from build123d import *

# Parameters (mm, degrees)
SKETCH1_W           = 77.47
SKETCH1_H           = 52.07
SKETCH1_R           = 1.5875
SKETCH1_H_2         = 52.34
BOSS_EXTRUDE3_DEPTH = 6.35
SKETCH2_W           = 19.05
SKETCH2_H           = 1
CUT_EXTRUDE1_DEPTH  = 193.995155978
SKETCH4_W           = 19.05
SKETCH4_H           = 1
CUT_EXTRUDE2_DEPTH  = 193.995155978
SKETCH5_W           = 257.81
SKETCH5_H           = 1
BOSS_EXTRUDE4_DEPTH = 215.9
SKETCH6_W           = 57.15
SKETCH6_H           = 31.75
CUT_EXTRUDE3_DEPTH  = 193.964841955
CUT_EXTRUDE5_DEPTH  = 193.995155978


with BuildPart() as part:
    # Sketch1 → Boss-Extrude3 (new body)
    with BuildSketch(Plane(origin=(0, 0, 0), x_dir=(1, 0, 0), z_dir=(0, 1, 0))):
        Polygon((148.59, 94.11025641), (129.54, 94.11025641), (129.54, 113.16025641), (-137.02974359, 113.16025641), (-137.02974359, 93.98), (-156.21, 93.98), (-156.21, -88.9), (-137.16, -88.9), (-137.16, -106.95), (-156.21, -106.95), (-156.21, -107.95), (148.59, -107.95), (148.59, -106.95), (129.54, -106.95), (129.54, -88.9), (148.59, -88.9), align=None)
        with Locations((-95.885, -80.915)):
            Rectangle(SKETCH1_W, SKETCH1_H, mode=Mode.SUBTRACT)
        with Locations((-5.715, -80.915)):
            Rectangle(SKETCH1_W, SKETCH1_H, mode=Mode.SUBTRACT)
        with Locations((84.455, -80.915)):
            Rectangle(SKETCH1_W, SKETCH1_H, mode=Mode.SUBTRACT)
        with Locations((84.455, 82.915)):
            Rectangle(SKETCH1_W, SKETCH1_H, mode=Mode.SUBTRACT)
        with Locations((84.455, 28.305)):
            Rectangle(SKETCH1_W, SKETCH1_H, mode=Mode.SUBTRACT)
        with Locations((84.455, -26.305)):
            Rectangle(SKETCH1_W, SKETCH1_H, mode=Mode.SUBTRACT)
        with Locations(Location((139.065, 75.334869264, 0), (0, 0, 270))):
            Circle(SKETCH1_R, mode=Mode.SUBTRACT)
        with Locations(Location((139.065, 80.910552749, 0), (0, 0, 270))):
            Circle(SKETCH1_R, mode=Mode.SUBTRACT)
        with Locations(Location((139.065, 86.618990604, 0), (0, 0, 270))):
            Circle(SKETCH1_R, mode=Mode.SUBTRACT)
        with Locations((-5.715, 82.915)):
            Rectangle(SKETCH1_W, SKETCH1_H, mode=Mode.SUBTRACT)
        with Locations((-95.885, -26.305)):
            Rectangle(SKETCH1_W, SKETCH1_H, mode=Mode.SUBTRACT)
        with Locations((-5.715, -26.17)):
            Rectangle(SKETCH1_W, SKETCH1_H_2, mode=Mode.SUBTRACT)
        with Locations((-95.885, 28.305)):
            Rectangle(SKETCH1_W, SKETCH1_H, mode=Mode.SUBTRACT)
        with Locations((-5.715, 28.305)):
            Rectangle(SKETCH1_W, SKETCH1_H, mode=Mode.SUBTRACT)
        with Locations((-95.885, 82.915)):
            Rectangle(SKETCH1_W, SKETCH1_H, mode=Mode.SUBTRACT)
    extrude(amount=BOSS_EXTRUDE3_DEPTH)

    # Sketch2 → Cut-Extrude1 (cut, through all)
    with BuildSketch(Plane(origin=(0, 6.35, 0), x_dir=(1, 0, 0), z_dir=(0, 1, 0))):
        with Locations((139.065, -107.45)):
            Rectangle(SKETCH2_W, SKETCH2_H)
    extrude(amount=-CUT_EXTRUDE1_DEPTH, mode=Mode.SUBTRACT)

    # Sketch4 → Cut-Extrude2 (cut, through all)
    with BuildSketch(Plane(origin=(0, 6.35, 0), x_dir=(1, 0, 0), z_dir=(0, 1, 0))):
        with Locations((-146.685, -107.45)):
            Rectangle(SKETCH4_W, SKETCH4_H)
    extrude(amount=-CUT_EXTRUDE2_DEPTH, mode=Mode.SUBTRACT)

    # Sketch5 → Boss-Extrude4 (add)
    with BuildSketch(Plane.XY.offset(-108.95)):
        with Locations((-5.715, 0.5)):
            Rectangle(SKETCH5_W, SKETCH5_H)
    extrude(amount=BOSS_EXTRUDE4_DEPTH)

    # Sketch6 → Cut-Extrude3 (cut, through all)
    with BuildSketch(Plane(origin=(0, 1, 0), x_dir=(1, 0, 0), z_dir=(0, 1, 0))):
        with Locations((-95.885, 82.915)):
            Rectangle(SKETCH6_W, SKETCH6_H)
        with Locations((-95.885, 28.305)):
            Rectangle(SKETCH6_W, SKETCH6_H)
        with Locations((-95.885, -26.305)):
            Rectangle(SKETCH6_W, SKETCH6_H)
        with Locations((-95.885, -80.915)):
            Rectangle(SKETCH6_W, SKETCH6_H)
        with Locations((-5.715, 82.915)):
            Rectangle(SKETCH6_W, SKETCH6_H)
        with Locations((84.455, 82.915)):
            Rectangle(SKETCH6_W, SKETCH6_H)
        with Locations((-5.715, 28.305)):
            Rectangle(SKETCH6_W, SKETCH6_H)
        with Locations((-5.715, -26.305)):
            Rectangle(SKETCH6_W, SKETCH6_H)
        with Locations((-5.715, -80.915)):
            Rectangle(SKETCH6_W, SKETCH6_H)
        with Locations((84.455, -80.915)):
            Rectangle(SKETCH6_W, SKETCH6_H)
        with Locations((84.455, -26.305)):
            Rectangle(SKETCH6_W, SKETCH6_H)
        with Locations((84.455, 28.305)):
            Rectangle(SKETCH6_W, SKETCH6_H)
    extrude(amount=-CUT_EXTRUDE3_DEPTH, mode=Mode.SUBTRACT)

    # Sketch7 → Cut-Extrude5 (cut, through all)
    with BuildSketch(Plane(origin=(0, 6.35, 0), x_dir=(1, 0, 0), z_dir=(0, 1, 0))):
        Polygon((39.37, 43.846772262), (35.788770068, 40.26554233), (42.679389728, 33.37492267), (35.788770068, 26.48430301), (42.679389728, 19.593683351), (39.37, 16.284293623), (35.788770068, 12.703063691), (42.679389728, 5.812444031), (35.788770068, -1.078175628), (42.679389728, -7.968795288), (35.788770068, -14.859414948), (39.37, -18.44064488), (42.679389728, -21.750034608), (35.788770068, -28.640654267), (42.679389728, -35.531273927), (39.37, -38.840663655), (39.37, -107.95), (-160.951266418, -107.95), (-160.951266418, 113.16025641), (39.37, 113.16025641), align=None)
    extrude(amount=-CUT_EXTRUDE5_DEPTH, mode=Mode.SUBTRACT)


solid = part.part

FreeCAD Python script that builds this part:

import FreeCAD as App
import Part
import Sketcher
from FreeCAD import Vector
Q = App.Units.Quantity

doc = App.newDocument("Part")
params = doc.addObject("Spreadsheet::Sheet", "Params")
for row, (alias, value) in enumerate([
    ("sketch1_width", "12 in"),
    ("sketch1_diameter", "0.125 in"),
    ("sketch1_height", "7.2 in"),
    ("sketch1_width2", "0.75 in"),
    ("sketch1_width3", "3.05 in"),
    ("pad1_length", "0.25 in"),
    ("sketch2_width", "0.75 in"),
    ("sketch3_width", "0.75 in"),
    ("sketch4_width", "10.15 in"),
    ("pad2_length", "8.5 in"),
    ("sketch5_width", "2.25 in"),
    ("sketch5_height", "1.25 in"),
], start=1):
    params.set(f"A{row}", alias)
    params.set(f"B{row}", "=" + value)
    params.setAlias(f"B{row}", alias)

body = doc.addObject("PartDesign::Body", "Body")

# Sketch on XZ plane
sketch1 = doc.addObject("Sketcher::SketchObject", "Sketch")
body.addObject(sketch1)
sketch1.AttachmentSupport = (doc.XZ_Plane, [""])
sketch1.MapMode = "FlatFace"
sketch1.addGeometry(Part.LineSegment(Vector(148.6, -94.1, 0), Vector(129.5, -94.1, 0)), False)
sketch1.addGeometry(Part.LineSegment(Vector(129.5, -94.1, 0), Vector(129.5, -113.2, 0)), False)
sketch1.addGeometry(Part.LineSegment(Vector(129.5, -113.2, 0), Vector(-137, -113.2, 0)), False)
sketch1.addGeometry(Part.LineSegment(Vector(-137, -113.2, 0), Vector(-137, -94, 0)), False)
sketch1.addGeometry(Part.LineSegment(Vector(-137, -94, 0), Vector(-156.2, -94, 0)), False)
sketch1.addGeometry(Part.LineSegment(Vector(-156.2, -94, 0), Vector(-156.2, 88.9, 0)), False)
sketch1.addGeometry(Part.LineSegment(Vector(-156.2, 88.9, 0), Vector(-137.2, 88.9, 0)), False)
sketch1.addGeometry(Part.LineSegment(Vector(-137.2, 88.9, 0), Vector(-137.2, 107, 0)), False)
sketch1.addGeometry(Part.LineSegment(Vector(-137.2, 107, 0), Vector(-156.2, 107, 0)), False)
sketch1.addGeometry(Part.LineSegment(Vector(-156.2, 107, 0), Vector(-156.2, 108, 0)), False)
sketch1.addGeometry(Part.LineSegment(Vector(-156.2, 108, 0), Vector(148.6, 108, 0)), False)
sketch1.addGeometry(Part.LineSegment(Vector(148.6, 108, 0), Vector(148.6, 107, 0)), False)
sketch1.addGeometry(Part.LineSegment(Vector(148.6, 107, 0), Vector(129.5, 107, 0)), False)
sketch1.addGeometry(Part.LineSegment(Vector(129.5, 107, 0), Vector(129.5, 88.9, 0)), False)
sketch1.addGeometry(Part.LineSegment(Vector(129.5, 88.9, 0), Vector(148.6, 88.9, 0)), False)
sketch1.addGeometry(Part.LineSegment(Vector(148.6, 88.9, 0), Vector(148.6, -94.1, 0)), False)
sketch1.addGeometry(Part.LineSegment(Vector(-57.1, 107, 0), Vector(-134.6, 107, 0)), False)
sketch1.addGeometry(Part.LineSegment(Vector(-134.6, 107, 0), Vector(-134.6, 54.9, 0)), False)
sketch1.addGeometry(Part.LineSegment(Vector(-134.6, 54.9, 0), Vector(-57.1, 54.9, 0)), False)
sketch1.addGeometry(Part.LineSegment(Vector(-57.1, 54.9, 0), Vector(-57.1, 107, 0)), False)
sketch1.addGeometry(Part.LineSegment(Vector(33, 107, 0), Vector(-44.5, 107, 0)), False)
sketch1.addGeometry(Part.LineSegment(Vector(-44.5, 107, 0), Vector(-44.5, 54.9, 0)), False)
sketch1.addGeometry(Part.LineSegment(Vector(-44.5, 54.9, 0), Vector(33, 54.9, 0)), False)
sketch1.addGeometry(Part.LineSegment(Vector(33, 54.9, 0), Vector(33, 107, 0)), False)
sketch1.addGeometry(Part.LineSegment(Vector(-57.1, 52.3, 0), Vector(-134.6, 52.3, 0)), False)
sketch1.addGeometry(Part.LineSegment(Vector(-134.6, 52.3, 0), Vector(-134.6, 0.3, 0)), False)
sketch1.addGeometry(Part.LineSegment(Vector(-134.6, 0.3, 0), Vector(-57.1, 0.3, 0)), False)
sketch1.addGeometry(Part.LineSegment(Vector(-57.1, 0.3, 0), Vector(-57.1, 52.3, 0)), False)
sketch1.addGeometry(Part.LineSegment(Vector(33, 52.3, 0), Vector(-44.5, 52.3, 0)), False)
sketch1.addGeometry(Part.LineSegment(Vector(-44.5, 52.3, 0), Vector(-44.5, 0, 0)), False)
sketch1.addGeometry(Part.LineSegment(Vector(-44.5, 0, 0), Vector(33, 0, 0)), False)
sketch1.addGeometry(Part.LineSegment(Vector(33, 0, 0), Vector(33, 52.3, 0)), False)
sketch1.addGeometry(Part.LineSegment(Vector(123.2, 107, 0), Vector(45.7, 107, 0)), False)
sketch1.addGeometry(Part.LineSegment(Vector(45.7, 107, 0), Vector(45.7, 54.9, 0)), False)
sketch1.addGeometry(Part.LineSegment(Vector(45.7, 54.9, 0), Vector(123.2, 54.9, 0)), False)
sketch1.addGeometry(Part.LineSegment(Vector(123.2, 54.9, 0), Vector(123.2, 107, 0)), False)
sketch1.addGeometry(Part.LineSegment(Vector(123.2, 52.3, 0), Vector(45.7, 52.3, 0)), False)
sketch1.addGeometry(Part.LineSegment(Vector(45.7, 52.3, 0), Vector(45.7, 0.3, 0)), False)
sketch1.addGeometry(Part.LineSegment(Vector(45.7, 0.3, 0), Vector(123.2, 0.3, 0)), False)
sketch1.addGeometry(Part.LineSegment(Vector(123.2, 0.3, 0), Vector(123.2, 52.3, 0)), False)
sketch1.addGeometry(Part.LineSegment(Vector(-57.1, -2.3, 0), Vector(-134.6, -2.3, 0)), False)
sketch1.addGeometry(Part.LineSegment(Vector(-134.6, -2.3, 0), Vector(-134.6, -54.3, 0)), False)
sketch1.addGeometry(Part.LineSegment(Vector(-134.6, -54.3, 0), Vector(-57.1, -54.3, 0)), False)
sketch1.addGeometry(Part.LineSegment(Vector(-57.1, -54.3, 0), Vector(-57.1, -2.3, 0)), False)
sketch1.addGeometry(Part.LineSegment(Vector(33, -2.3, 0), Vector(-44.5, -2.3, 0)), False)
sketch1.addGeometry(Part.LineSegment(Vector(-44.5, -2.3, 0), Vector(-44.5, -54.3, 0)), False)
sketch1.addGeometry(Part.LineSegment(Vector(-44.5, -54.3, 0), Vector(33, -54.3, 0)), False)
sketch1.addGeometry(Part.LineSegment(Vector(33, -54.3, 0), Vector(33, -2.3, 0)), False)
sketch1.addGeometry(Part.LineSegment(Vector(-57.1, -56.9, 0), Vector(-134.6, -56.9, 0)), False)
sketch1.addGeometry(Part.LineSegment(Vector(-134.6, -56.9, 0), Vector(-134.6, -109, 0)), False)
sketch1.addGeometry(Part.LineSegment(Vector(-134.6, -109, 0), Vector(-57.1, -109, 0)), False)
sketch1.addGeometry(Part.LineSegment(Vector(-57.1, -109, 0), Vector(-57.1, -56.9, 0)), False)
sketch1.addGeometry(Part.LineSegment(Vector(33, -56.9, 0), Vector(-44.5, -56.9, 0)), False)
sketch1.addGeometry(Part.LineSegment(Vector(-44.5, -56.9, 0), Vector(-44.5, -109, 0)), False)
sketch1.addGeometry(Part.LineSegment(Vector(-44.5, -109, 0), Vector(33, -109, 0)), False)
sketch1.addGeometry(Part.LineSegment(Vector(33, -109, 0), Vector(33, -56.9, 0)), False)
sketch1.addGeometry(Part.LineSegment(Vector(123.2, -2.3, 0), Vector(45.7, -2.3, 0)), False)
sketch1.addGeometry(Part.LineSegment(Vector(45.7, -2.3, 0), Vector(45.7, -54.3, 0)), False)
sketch1.addGeometry(Part.LineSegment(Vector(45.7, -54.3, 0), Vector(123.2, -54.3, 0)), False)
sketch1.addGeometry(Part.LineSegment(Vector(123.2, -54.3, 0), Vector(123.2, -2.3, 0)), False)
sketch1.addGeometry(Part.Circle(Vector(139.1, -75.3, 0), Vector(0, 0, 1), 1.6), False)
sketch1.addGeometry(Part.Circle(Vector(139.1, -80.9, 0), Vector(0, 0, 1), 1.6), False)
sketch1.addGeometry(Part.LineSegment(Vector(123.2, -56.9, 0), Vector(45.7, -56.9, 0)), False)
sketch1.addGeometry(Part.LineSegment(Vector(45.7, -56.9, 0), Vector(45.7, -109, 0)), False)
sketch1.addGeometry(Part.LineSegment(Vector(45.7, -109, 0), Vector(123.2, -109, 0)), False)
sketch1.addGeometry(Part.LineSegment(Vector(123.2, -109, 0), Vector(123.2, -56.9, 0)), False)
sketch1.addGeometry(Part.Circle(Vector(139.1, -86.6, 0), Vector(0, 0, 1), 1.6), False)
sketch1.addConstraint(Sketcher.Constraint("Coincident", 0, 2, 1, 1))
sketch1.addConstraint(Sketcher.Constraint("Coincident", 1, 2, 2, 1))
sketch1.addConstraint(Sketcher.Constraint("Coincident", 2, 2, 3, 1))
sketch1.addConstraint(Sketcher.Constraint("Coincident", 3, 2, 4, 1))
sketch1.addConstraint(Sketcher.Constraint("Coincident", 4, 2, 5, 1))
sketch1.addConstraint(Sketcher.Constraint("Coincident", 5, 2, 6, 1))
sketch1.addConstraint(Sketcher.Constraint("Coincident", 6, 2, 7, 1))
sketch1.addConstraint(Sketcher.Constraint("Coincident", 7, 2, 8, 1))
sketch1.addConstraint(Sketcher.Constraint("Coincident", 8, 2, 9, 1))
sketch1.addConstraint(Sketcher.Constraint("Coincident", 9, 2, 10, 1))
sketch1.addConstraint(Sketcher.Constraint("Coincident", 10, 2, 11, 1))
sketch1.addConstraint(Sketcher.Constraint("Coincident", 11, 2, 12, 1))
sketch1.addConstraint(Sketcher.Constraint("Coincident", 12, 2, 13, 1))
sketch1.addConstraint(Sketcher.Constraint("Coincident", 13, 2, 14, 1))
sketch1.addConstraint(Sketcher.Constraint("Coincident", 14, 2, 15, 1))
sketch1.addConstraint(Sketcher.Constraint("Coincident", 15, 2, 0, 1))
sketch1.addConstraint(Sketcher.Constraint("Coincident", 16, 2, 17, 1))
sketch1.addConstraint(Sketcher.Constraint("Coincident", 17, 2, 18, 1))
sketch1.addConstraint(Sketcher.Constraint("Coincident", 18, 2, 19, 1))
sketch1.addConstraint(Sketcher.Constraint("Coincident", 19, 2, 16, 1))
sketch1.addConstraint(Sketcher.Constraint("Coincident", 20, 2, 21, 1))
sketch1.addConstraint(Sketcher.Constraint("Coincident", 21, 2, 22, 1))
sketch1.addConstraint(Sketcher.Constraint("Coincident", 22, 2, 23, 1))
sketch1.addConstraint(Sketcher.Constraint("Coincident", 23, 2, 20, 1))
sketch1.addConstraint(Sketcher.Constraint("Coincident", 24, 2, 25, 1))
sketch1.addConstraint(Sketcher.Constraint("Coincident", 25, 2, 26, 1))
sketch1.addConstraint(Sketcher.Constraint("Coincident", 26, 2, 27, 1))
sketch1.addConstraint(Sketcher.Constraint("Coincident", 27, 2, 24, 1))
sketch1.addConstraint(Sketcher.Constraint("Coincident", 28, 2, 29, 1))
sketch1.addConstraint(Sketcher.Constraint("Coincident", 29, 2, 30, 1))
sketch1.addConstraint(Sketcher.Constraint("Coincident", 30, 2, 31, 1))
sketch1.addConstraint(Sketcher.Constraint("Coincident", 31, 2, 28, 1))
sketch1.addConstraint(Sketcher.Constraint("Coincident", 32, 2, 33, 1))
sketch1.addConstraint(Sketcher.Constraint("Coincident", 33, 2, 34, 1))
sketch1.addConstraint(Sketcher.Constraint("Coincident", 34, 2, 35, 1))
sketch1.addConstraint(Sketcher.Constraint("Coincident", 35, 2, 32, 1))
sketch1.addConstraint(Sketcher.Constraint("Coincident", 36, 2, 37, 1))
sketch1.addConstraint(Sketcher.Constraint("Coincident", 37, 2, 38, 1))
sketch1.addConstraint(Sketcher.Constraint("Coincident", 38, 2, 39, 1))
sketch1.addConstraint(Sketcher.Constraint("Coincident", 39, 2, 36, 1))
sketch1.addConstraint(Sketcher.Constraint("Coincident", 40, 2, 41, 1))
sketch1.addConstraint(Sketcher.Constraint("Coincident", 41, 2, 42, 1))
sketch1.addConstraint(Sketcher.Constraint("Coincident", 42, 2, 43, 1))
sketch1.addConstraint(Sketcher.Constraint("Coincident", 43, 2, 40, 1))
sketch1.addConstraint(Sketcher.Constraint("Coincident", 44, 2, 45, 1))
sketch1.addConstraint(Sketcher.Constraint("Coincident", 45, 2, 46, 1))
sketch1.addConstraint(Sketcher.Constraint("Coincident", 46, 2, 47, 1))
sketch1.addConstraint(Sketcher.Constraint("Coincident", 47, 2, 44, 1))
sketch1.addConstraint(Sketcher.Constraint("Coincident", 48, 2, 49, 1))
sketch1.addConstraint(Sketcher.Constraint("Coincident", 49, 2, 50, 1))
sketch1.addConstraint(Sketcher.Constraint("Coincident", 50, 2, 51, 1))
sketch1.addConstraint(Sketcher.Constraint("Coincident", 51, 2, 48, 1))
sketch1.addConstraint(Sketcher.Constraint("Coincident", 52, 2, 53, 1))
sketch1.addConstraint(Sketcher.Constraint("Coincident", 53, 2, 54, 1))
sketch1.addConstraint(Sketcher.Constraint("Coincident", 54, 2, 55, 1))
sketch1.addConstraint(Sketcher.Constraint("Coincident", 55, 2, 52, 1))
sketch1.addConstraint(Sketcher.Constraint("Coincident", 56, 2, 57, 1))
sketch1.addConstraint(Sketcher.Constraint("Coincident", 57, 2, 58, 1))
sketch1.addConstraint(Sketcher.Constraint("Coincident", 58, 2, 59, 1))
sketch1.addConstraint(Sketcher.Constraint("Coincident", 59, 2, 56, 1))
sketch1.addConstraint(Sketcher.Constraint("Coincident", 62, 2, 63, 1))
sketch1.addConstraint(Sketcher.Constraint("Coincident", 63, 2, 64, 1))
sketch1.addConstraint(Sketcher.Constraint("Coincident", 64, 2, 65, 1))
sketch1.addConstraint(Sketcher.Constraint("Coincident", 65, 2, 62, 1))
sketch1.addConstraint(Sketcher.Constraint("Horizontal", 0))
sketch1.addConstraint(Sketcher.Constraint("Vertical", 1))
sketch1.addConstraint(Sketcher.Constraint("Horizontal", 2))
sketch1.addConstraint(Sketcher.Constraint("Vertical", 3))
sketch1.addConstraint(Sketcher.Constraint("Horizontal", 4))
sketch1.addConstraint(Sketcher.Constraint("Vertical", 5))
sketch1.addConstraint(Sketcher.Constraint("Horizontal", 6))
sketch1.addConstraint(Sketcher.Constraint("Vertical", 7))
sketch1.addConstraint(Sketcher.Constraint("Horizontal", 8))
sketch1.addConstraint(Sketcher.Constraint("Vertical", 9))
sketch1.addConstraint(Sketcher.Constraint("Horizontal", 10))
sketch1.addConstraint(Sketcher.Constraint("Vertical", 11))
sketch1.addConstraint(Sketcher.Constraint("Horizontal", 12))
sketch1.addConstraint(Sketcher.Constraint("Vertical", 13))
sketch1.addConstraint(Sketcher.Constraint("Horizontal", 14))
sketch1.addConstraint(Sketcher.Constraint("Vertical", 15))
sketch1.addConstraint(Sketcher.Constraint("Horizontal", 16))
sketch1.addConstraint(Sketcher.Constraint("Vertical", 17))
sketch1.addConstraint(Sketcher.Constraint("Horizontal", 18))
sketch1.addConstraint(Sketcher.Constraint("Vertical", 19))
sketch1.addConstraint(Sketcher.Constraint("Horizontal", 20))
sketch1.addConstraint(Sketcher.Constraint("Vertical", 21))
sketch1.addConstraint(Sketcher.Constraint("Horizontal", 22))
sketch1.addConstraint(Sketcher.Constraint("Vertical", 23))
sketch1.addConstraint(Sketcher.Constraint("Horizontal", 24))
sketch1.addConstraint(Sketcher.Constraint("Vertical", 25))
sketch1.addConstraint(Sketcher.Constraint("Horizontal", 26))
sketch1.addConstraint(Sketcher.Constraint("Vertical", 27))
sketch1.addConstraint(Sketcher.Constraint("Horizontal", 28))
sketch1.addConstraint(Sketcher.Constraint("Vertical", 29))
sketch1.addConstraint(Sketcher.Constraint("Horizontal", 30))
sketch1.addConstraint(Sketcher.Constraint("Vertical", 31))
sketch1.addConstraint(Sketcher.Constraint("Horizontal", 32))
sketch1.addConstraint(Sketcher.Constraint("Vertical", 33))
sketch1.addConstraint(Sketcher.Constraint("Horizontal", 34))
sketch1.addConstraint(Sketcher.Constraint("Vertical", 35))
sketch1.addConstraint(Sketcher.Constraint("Horizontal", 36))
sketch1.addConstraint(Sketcher.Constraint("Vertical", 37))
sketch1.addConstraint(Sketcher.Constraint("Horizontal", 38))
sketch1.addConstraint(Sketcher.Constraint("Vertical", 39))
sketch1.addConstraint(Sketcher.Constraint("Horizontal", 40))
sketch1.addConstraint(Sketcher.Constraint("Vertical", 41))
sketch1.addConstraint(Sketcher.Constraint("Horizontal", 42))
sketch1.addConstraint(Sketcher.Constraint("Vertical", 43))
sketch1.addConstraint(Sketcher.Constraint("Horizontal", 44))
sketch1.addConstraint(Sketcher.Constraint("Vertical", 45))
sketch1.addConstraint(Sketcher.Constraint("Horizontal", 46))
sketch1.addConstraint(Sketcher.Constraint("Vertical", 47))
sketch1.addConstraint(Sketcher.Constraint("Horizontal", 48))
sketch1.addConstraint(Sketcher.Constraint("Vertical", 49))
sketch1.addConstraint(Sketcher.Constraint("Horizontal", 50))
sketch1.addConstraint(Sketcher.Constraint("Vertical", 51))
sketch1.addConstraint(Sketcher.Constraint("Horizontal", 52))
sketch1.addConstraint(Sketcher.Constraint("Vertical", 53))
sketch1.addConstraint(Sketcher.Constraint("Horizontal", 54))
sketch1.addConstraint(Sketcher.Constraint("Vertical", 55))
sketch1.addConstraint(Sketcher.Constraint("Horizontal", 56))
sketch1.addConstraint(Sketcher.Constraint("Vertical", 57))
sketch1.addConstraint(Sketcher.Constraint("Horizontal", 58))
sketch1.addConstraint(Sketcher.Constraint("Vertical", 59))
sketch1.addConstraint(Sketcher.Constraint("Horizontal", 62))
sketch1.addConstraint(Sketcher.Constraint("Vertical", 63))
sketch1.addConstraint(Sketcher.Constraint("Horizontal", 64))
sketch1.addConstraint(Sketcher.Constraint("Vertical", 65))
sketch1.addConstraint(Sketcher.Constraint("Equal", 60, 61))
sketch1.addConstraint(Sketcher.Constraint("Equal", 61, 66))
sketch1.addConstraint(Sketcher.Constraint("PointOnObject", 29, 2, -1))
sketch1.addConstraint(Sketcher.Constraint("Horizontal", 8, 2, 11, 2))
sketch1.addConstraint(Sketcher.Constraint("Horizontal", 6, 2, 13, 2))
sketch1.addConstraint(Sketcher.Constraint("Horizontal", 12, 2, 16, 2))
sketch1.addConstraint(Sketcher.Constraint("Horizontal", 19, 2, 20, 2))
sketch1.addConstraint(Sketcher.Constraint("Horizontal", 18, 2, 21, 2))
sketch1.addConstraint(Sketcher.Constraint("Horizontal", 27, 2, 28, 2))
sketch1.addConstraint(Sketcher.Constraint("Horizontal", 23, 2, 32, 2))
sketch1.addConstraint(Sketcher.Constraint("Horizontal", 22, 2, 33, 2))
sketch1.addConstraint(Sketcher.Constraint("Horizontal", 31, 2, 36, 2))
sketch1.addConstraint(Sketcher.Constraint("Horizontal", 26, 2, 37, 2))
sketch1.addConstraint(Sketcher.Constraint("Horizontal", 43, 2, 44, 2))
sketch1.addConstraint(Sketcher.Constraint("Horizontal", 42, 2, 45, 2))
sketch1.addConstraint(Sketcher.Constraint("Horizontal", 51, 2, 52, 2))
sketch1.addConstraint(Sketcher.Constraint("Horizontal", 50, 2, 53, 2))
sketch1.addConstraint(Sketcher.Constraint("Horizontal", 47, 2, 56, 2))
sketch1.addConstraint(Sketcher.Constraint("Horizontal", 46, 2, 57, 2))
sketch1.addConstraint(Sketcher.Constraint("Horizontal", 55, 2, 62, 2))
sketch1.addConstraint(Sketcher.Constraint("Horizontal", 54, 2, 63, 2))
sketch1.addConstraint(Sketcher.Constraint("Vertical", 60, 3, 61, 3))
sketch1.addConstraint(Sketcher.Constraint("Vertical", 61, 3, 66, 3))
sketch1.addConstraint(Sketcher.Constraint("Vertical", 5, 2, 8, 2))
sketch1.addConstraint(Sketcher.Constraint("Vertical", 1, 2, 12, 2))
sketch1.addConstraint(Sketcher.Constraint("Vertical", 11, 2, 14, 2))
sketch1.addConstraint(Sketcher.Constraint("Vertical", 17, 2, 24, 2))
sketch1.addConstraint(Sketcher.Constraint("Vertical", 19, 2, 26, 2))
sketch1.addConstraint(Sketcher.Constraint("Vertical", 21, 2, 28, 2))
sketch1.addConstraint(Sketcher.Constraint("Vertical", 23, 2, 30, 2))
sketch1.addConstraint(Sketcher.Constraint("Vertical", 33, 2, 36, 2))
sketch1.addConstraint(Sketcher.Constraint("Vertical", 35, 2, 38, 2))
sketch1.addConstraint(Sketcher.Constraint("Vertical", 25, 2, 40, 2))
sketch1.addConstraint(Sketcher.Constraint("Vertical", 27, 2, 42, 2))
sketch1.addConstraint(Sketcher.Constraint("Vertical", 29, 2, 44, 2))
sketch1.addConstraint(Sketcher.Constraint("Vertical", 31, 2, 46, 2))
sketch1.addConstraint(Sketcher.Constraint("Vertical", 41, 2, 48, 2))
sketch1.addConstraint(Sketcher.Constraint("Vertical", 43, 2, 50, 2))
sketch1.addConstraint(Sketcher.Constraint("Vertical", 45, 2, 52, 2))
sketch1.addConstraint(Sketcher.Constraint("Vertical", 47, 2, 54, 2))
sketch1.addConstraint(Sketcher.Constraint("Vertical", 37, 2, 56, 2))
sketch1.addConstraint(Sketcher.Constraint("Vertical", 39, 2, 58, 2))
sketch1.addConstraint(Sketcher.Constraint("Vertical", 57, 2, 62, 2))
sketch1.addConstraint(Sketcher.Constraint("Vertical", 59, 2, 64, 2))
sketch1.addConstraint(Sketcher.Constraint("Equal", 0, 6))
sketch1.addConstraint(Sketcher.Constraint("Equal", 18, 20))
sketch1.addConstraint(Sketcher.Constraint("Equal", 30, 32))
sketch1.addConstraint(Sketcher.Constraint("Equal", 14, 1))
sketch1.addConstraint(Sketcher.Constraint("Equal", 4, 3))
sketch1.addConstraint(Sketcher.Constraint("Equal", 23, 25))
sketch1.addConstraint(Sketcher.Constraint("Equal", 39, 41))
sketch1.addConstraint(Sketcher.Constraint("Equal", 47, 49))
sketch1.addConstraint(Sketcher.Constraint("DistanceX", 10, 1, 10, 2, Q("12 in")))
sketch1.addConstraint(Sketcher.Constraint("Diameter", 60, Q("0.125 in")))
sketch1.addConstraint(Sketcher.Constraint("DistanceY", 5, 1, 5, 2, Q("7.2 in")))
sketch1.addConstraint(Sketcher.Constraint("DistanceX", 0, 2, 0, 1, Q("0.75 in")))
sketch1.addConstraint(Sketcher.Constraint("DistanceX", 16, 2, 16, 1, Q("3.05 in")))
sketch1.addConstraint(Sketcher.Constraint("DistanceY", 17, 2, 17, 1, Q("2.05 in")))
sketch1.addConstraint(Sketcher.Constraint("DistanceX", -1, 1, 0, 2, Q("5.1 in")))
sketch1.addConstraint(Sketcher.Constraint("DistanceY", 3, 2, -1, 1, Q("3.7 in")))
sketch1.addConstraint(Sketcher.Constraint("DistanceX", 16, 2, -1, 1, Q("5.3 in")))
sketch1.addConstraint(Sketcher.Constraint("DistanceX", -1, 1, 22, 2, Q("1.3 in")))
sketch1.addConstraint(Sketcher.Constraint("DistanceX", -1, 1, 32, 2, Q("1.8 in")))
sketch1.addConstraint(Sketcher.Constraint("DistanceY", -1, 1, 9, 2, Q("4.25 in")))
sketch1.addConstraint(Sketcher.Constraint("DistanceX", -1, 1, 60, 3, Q("5.475 in")))
sketch1.addConstraint(Sketcher.Constraint("DistanceY", 7, 1, 7, 2, 18.05))
sketch1.addConstraint(Sketcher.Constraint("DistanceY", 29, 2, 29, 1, 52.34))
sketch1.addConstraint(Sketcher.Constraint("DistanceY", 40, 2, -1, 1, 2.27))
sketch1.addConstraint(Sketcher.Constraint("DistanceY", 48, 2, -1, 1, 56.88))
sketch1.addConstraint(Sketcher.Constraint("DistanceX", 2, 2, 2, 1, 266.569744))
sketch1.addConstraint(Sketcher.Constraint("DistanceY", 60, 3, -1, 1, 75.334869))
sketch1.addConstraint(Sketcher.Constraint("DistanceY", 66, 3, -1, 1, 86.618991))
sketch1.addConstraint(Sketcher.Constraint("DistanceY", 61, 3, -1, 1, 80.910553))
sketch1.setExpression("Constraints[180]", "Params.sketch1_width")
sketch1.setExpression("Constraints[181]", "Params.sketch1_diameter")
sketch1.setExpression("Constraints[182]", "Params.sketch1_height")
sketch1.setExpression("Constraints[183]", "Params.sketch1_width2")
sketch1.setExpression("Constraints[184]", "Params.sketch1_width3")
pad1 = doc.addObject("PartDesign::Pad", "Pad")
body.addObject(pad1)
pad1.Profile = sketch1
pad1.setExpression("Length", "Params.pad1_length")
pad1.Reversed = True

# Sketch on XZ plane
sketch2 = doc.addObject("Sketcher::SketchObject", "Sketch001")
body.addObject(sketch2)
sketch2.AttachmentSupport = (doc.XZ_Plane, [""])
sketch2.MapMode = "FlatFace"
sketch2.AttachmentOffset = App.Placement(Vector(0, 0, -0.25 * 25.4), App.Rotation())
sketch2.addGeometry(Part.LineSegment(Vector(129.5, 107, 0), Vector(129.5, 108, 0)), False)
sketch2.addGeometry(Part.LineSegment(Vector(129.5, 108, 0), Vector(148.6, 108, 0)), False)
sketch2.addGeometry(Part.LineSegment(Vector(148.6, 108, 0), Vector(148.6, 107, 0)), False)
sketch2.addGeometry(Part.LineSegment(Vector(148.6, 107, 0), Vector(129.5, 107, 0)), False)
sketch2.addConstraint(Sketcher.Constraint("Coincident", 0, 2, 1, 1))
sketch2.addConstraint(Sketcher.Constraint("Coincident", 1, 2, 2, 1))
sketch2.addConstraint(Sketcher.Constraint("Coincident", 2, 2, 3, 1))
sketch2.addConstraint(Sketcher.Constraint("Coincident", 3, 2, 0, 1))
sketch2.addConstraint(Sketcher.Constraint("Vertical", 0))
sketch2.addConstraint(Sketcher.Constraint("Horizontal", 1))
sketch2.addConstraint(Sketcher.Constraint("Vertical", 2))
sketch2.addConstraint(Sketcher.Constraint("Horizontal", 3))
sketch2.addConstraint(Sketcher.Constraint("DistanceX", 1, 1, 1, 2, Q("0.75 in")))
sketch2.addConstraint(Sketcher.Constraint("DistanceX", -1, 1, 0, 2, Q("5.1 in")))
sketch2.addConstraint(Sketcher.Constraint("DistanceY", -1, 1, 0, 2, Q("4.25 in")))
sketch2.addConstraint(Sketcher.Constraint("DistanceY", 0, 1, 0, 2, 1.0))
sketch2.setExpression("Constraints[8]", "Params.sketch2_width")
pocket1 = doc.addObject("PartDesign::Pocket", "Pocket")
body.addObject(pocket1)
pocket1.Profile = sketch2
pocket1.Type = "ThroughAll"
pocket1.Reversed = True

# Sketch on XZ plane
sketch3 = doc.addObject("Sketcher::SketchObject", "Sketch002")
body.addObject(sketch3)
sketch3.AttachmentSupport = (doc.XZ_Plane, [""])
sketch3.MapMode = "FlatFace"
sketch3.AttachmentOffset = App.Placement(Vector(0, 0, -0.25 * 25.4), App.Rotation())
sketch3.addGeometry(Part.LineSegment(Vector(-156.2, 107, 0), Vector(-156.2, 108, 0)), False)
sketch3.addGeometry(Part.LineSegment(Vector(-156.2, 108, 0), Vector(-137.2, 108, 0)), False)
sketch3.addGeometry(Part.LineSegment(Vector(-137.2, 108, 0), Vector(-137.2, 107, 0)), False)
sketch3.addGeometry(Part.LineSegment(Vector(-137.2, 107, 0), Vector(-156.2, 107, 0)), False)
sketch3.addConstraint(Sketcher.Constraint("Coincident", 0, 2, 1, 1))
sketch3.addConstraint(Sketcher.Constraint("Coincident", 1, 2, 2, 1))
sketch3.addConstraint(Sketcher.Constraint("Coincident", 2, 2, 3, 1))
sketch3.addConstraint(Sketcher.Constraint("Coincident", 3, 2, 0, 1))
sketch3.addConstraint(Sketcher.Constraint("Vertical", 0))
sketch3.addConstraint(Sketcher.Constraint("Horizontal", 1))
sketch3.addConstraint(Sketcher.Constraint("Vertical", 2))
sketch3.addConstraint(Sketcher.Constraint("Horizontal", 3))
sketch3.addConstraint(Sketcher.Constraint("DistanceX", 1, 1, 1, 2, Q("0.75 in")))
sketch3.addConstraint(Sketcher.Constraint("DistanceX", 1, 2, -1, 1, Q("5.4 in")))
sketch3.addConstraint(Sketcher.Constraint("DistanceY", -1, 1, 0, 2, Q("4.25 in")))
sketch3.addConstraint(Sketcher.Constraint("DistanceY", 0, 1, 0, 2, 1.0))
sketch3.setExpression("Constraints[8]", "Params.sketch3_width")
pocket2 = doc.addObject("PartDesign::Pocket", "Pocket001")
body.addObject(pocket2)
pocket2.Profile = sketch3
pocket2.Type = "ThroughAll"
pocket2.Reversed = True

# Sketch on XY plane
sketch4 = doc.addObject("Sketcher::SketchObject", "Sketch003")
body.addObject(sketch4)
sketch4.AttachmentSupport = (doc.XY_Plane, [""])
sketch4.MapMode = "FlatFace"
sketch4.AttachmentOffset = App.Placement(Vector(0, 0, -108.95), App.Rotation())
sketch4.addGeometry(Part.LineSegment(Vector(-134.6, 1, 0), Vector(-134.6, 0, 0)), False)
sketch4.addGeometry(Part.LineSegment(Vector(-134.6, 0, 0), Vector(123.2, 0, 0)), False)
sketch4.addGeometry(Part.LineSegment(Vector(123.2, 0, 0), Vector(123.2, 1, 0)), False)
sketch4.addGeometry(Part.LineSegment(Vector(123.2, 1, 0), Vector(-134.6, 1, 0)), False)
sketch4.addConstraint(Sketcher.Constraint("Coincident", 0, 2, 1, 1))
sketch4.addConstraint(Sketcher.Constraint("Coincident", 1, 2, 2, 1))
sketch4.addConstraint(Sketcher.Constraint("Coincident", 2, 2, 3, 1))
sketch4.addConstraint(Sketcher.Constraint("Coincident", 3, 2, 0, 1))
sketch4.addConstraint(Sketcher.Constraint("Vertical", 0))
sketch4.addConstraint(Sketcher.Constraint("Horizontal", 1))
sketch4.addConstraint(Sketcher.Constraint("Vertical", 2))
sketch4.addConstraint(Sketcher.Constraint("Horizontal", 3))
sketch4.addConstraint(Sketcher.Constraint("PointOnObject", 0, 2, -1))
sketch4.addConstraint(Sketcher.Constraint("DistanceX", 1, 1, 1, 2, Q("10.15 in")))
sketch4.addConstraint(Sketcher.Constraint("DistanceX", 0, 2, -1, 1, Q("5.3 in")))
sketch4.addConstraint(Sketcher.Constraint("DistanceY", 0, 2, 0, 1, 1.0))
sketch4.setExpression("Constraints[9]", "Params.sketch4_width")
pad2 = doc.addObject("PartDesign::Pad", "Pad001")
body.addObject(pad2)
pad2.Profile = sketch4
pad2.setExpression("Length", "Params.pad2_length")

# Sketch on XZ plane
sketch5 = doc.addObject("Sketcher::SketchObject", "Sketch004")
body.addObject(sketch5)
sketch5.AttachmentSupport = (doc.XZ_Plane, [""])
sketch5.MapMode = "FlatFace"
sketch5.AttachmentOffset = App.Placement(Vector(0, 0, -1), App.Rotation())
sketch5.addGeometry(Part.LineSegment(Vector(-124, -99, 0), Vector(-124, -67, 0)), False)
sketch5.addGeometry(Part.LineSegment(Vector(-124, -67, 0), Vector(-67, -67, 0)), False)
sketch5.addGeometry(Part.LineSegment(Vector(-67, -67, 0), Vector(-67, -99, 0)), False)
sketch5.addGeometry(Part.LineSegment(Vector(-67, -99, 0), Vector(-124, -99, 0)), False)
sketch5.addGeometry(Part.LineSegment(Vector(-124, -44, 0), Vector(-124, -12, 0)), False)
sketch5.addGeometry(Part.LineSegment(Vector(-124, -12, 0), Vector(-67, -12, 0)), False)
sketch5.addGeometry(Part.LineSegment(Vector(-67, -12, 0), Vector(-67, -44, 0)), False)
sketch5.addGeometry(Part.LineSegment(Vector(-67, -44, 0), Vector(-124, -44, 0)), False)
sketch5.addGeometry(Part.LineSegment(Vector(-124, 10, 0), Vector(-124, 42, 0)), False)
sketch5.addGeometry(Part.LineSegment(Vector(-124, 42, 0), Vector(-67, 42, 0)), False)
sketch5.addGeometry(Part.LineSegment(Vector(-67, 42, 0), Vector(-67, 10, 0)), False)
sketch5.addGeometry(Part.LineSegment(Vector(-67, 10, 0), Vector(-124, 10, 0)), False)
sketch5.addGeometry(Part.LineSegment(Vector(-124, 65, 0), Vector(-124, 97, 0)), False)
sketch5.addGeometry(Part.LineSegment(Vector(-124, 97, 0), Vector(-67, 97, 0)), False)
sketch5.addGeometry(Part.LineSegment(Vector(-67, 97, 0), Vector(-67, 65, 0)), False)
sketch5.addGeometry(Part.LineSegment(Vector(-67, 65, 0), Vector(-124, 65, 0)), False)
sketch5.addGeometry(Part.LineSegment(Vector(-34, -99, 0), Vector(-34, -67, 0)), False)
sketch5.addGeometry(Part.LineSegment(Vector(-34, -67, 0), Vector(23, -67, 0)), False)
sketch5.addGeometry(Part.LineSegment(Vector(23, -67, 0), Vector(23, -99, 0)), False)
sketch5.addGeometry(Part.LineSegment(Vector(23, -99, 0), Vector(-34, -99, 0)), False)
sketch5.addGeometry(Part.LineSegment(Vector(56, -99, 0), Vector(56, -67, 0)), False)
sketch5.addGeometry(Part.LineSegment(Vector(56, -67, 0), Vector(113, -67, 0)), False)
sketch5.addGeometry(Part.LineSegment(Vector(113, -67, 0), Vector(113, -99, 0)), False)
sketch5.addGeometry(Part.LineSegment(Vector(113, -99, 0), Vector(56, -99, 0)), False)
sketch5.addGeometry(Part.LineSegment(Vector(-34, -44, 0), Vector(-34, -12, 0)), False)
sketch5.addGeometry(Part.LineSegment(Vector(-34, -12, 0), Vector(23, -12, 0)), False)
sketch5.addGeometry(Part.LineSegment(Vector(23, -12, 0), Vector(23, -44, 0)), False)
sketch5.addGeometry(Part.LineSegment(Vector(23, -44, 0), Vector(-34, -44, 0)), False)
sketch5.addGeometry(Part.LineSegment(Vector(-34, 10, 0), Vector(-34, 42, 0)), False)
sketch5.addGeometry(Part.LineSegment(Vector(-34, 42, 0), Vector(23, 42, 0)), False)
sketch5.addGeometry(Part.LineSegment(Vector(23, 42, 0), Vector(23, 10, 0)), False)
sketch5.addGeometry(Part.LineSegment(Vector(23, 10, 0), Vector(-34, 10, 0)), False)
sketch5.addGeometry(Part.LineSegment(Vector(-34, 65, 0), Vector(-34, 97, 0)), False)
sketch5.addGeometry(Part.LineSegment(Vector(-34, 97, 0), Vector(23, 97, 0)), False)
sketch5.addGeometry(Part.LineSegment(Vector(23, 97, 0), Vector(23, 65, 0)), False)
sketch5.addGeometry(Part.LineSegment(Vector(23, 65, 0), Vector(-34, 65, 0)), False)
sketch5.addGeometry(Part.LineSegment(Vector(56, 65, 0), Vector(56, 97, 0)), False)
sketch5.addGeometry(Part.LineSegment(Vector(56, 97, 0), Vector(113, 97, 0)), False)
sketch5.addGeometry(Part.LineSegment(Vector(113, 97, 0), Vector(113, 65, 0)), False)
sketch5.addGeometry(Part.LineSegment(Vector(113, 65, 0), Vector(56, 65, 0)), False)
sketch5.addGeometry(Part.LineSegment(Vector(56, 10, 0), Vector(56, 42, 0)), False)
sketch5.addGeometry(Part.LineSegment(Vector(56, 42, 0), Vector(113, 42, 0)), False)
sketch5.addGeometry(Part.LineSegment(Vector(113, 42, 0), Vector(113, 10, 0)), False)
sketch5.addGeometry(Part.LineSegment(Vector(113, 10, 0), Vector(56, 10, 0)), False)
sketch5.addGeometry(Part.LineSegment(Vector(56, -44, 0), Vector(56, -12, 0)), False)
sketch5.addGeometry(Part.LineSegment(Vector(56, -12, 0), Vector(113, -12, 0)), False)
sketch5.addGeometry(Part.LineSegment(Vector(113, -12, 0), Vector(113, -44, 0)), False)
sketch5.addGeometry(Part.LineSegment(Vector(113, -44, 0), Vector(56, -44, 0)), False)
sketch5.addConstraint(Sketcher.Constraint("Coincident", 0, 2, 1, 1))
sketch5.addConstraint(Sketcher.Constraint("Coincident", 1, 2, 2, 1))
sketch5.addConstraint(Sketcher.Constraint("Coincident", 2, 2, 3, 1))
sketch5.addConstraint(Sketcher.Constraint("Coincident", 3, 2, 0, 1))
sketch5.addConstraint(Sketcher.Constraint("Coincident", 4, 2, 5, 1))
sketch5.addConstraint(Sketcher.Constraint("Coincident", 5, 2, 6, 1))
sketch5.addConstraint(Sketcher.Constraint("Coincident", 6, 2, 7, 1))
sketch5.addConstraint(Sketcher.Constraint("Coincident", 7, 2, 4, 1))
sketch5.addConstraint(Sketcher.Constraint("Coincident", 8, 2, 9, 1))
sketch5.addConstraint(Sketcher.Constraint("Coincident", 9, 2, 10, 1))
sketch5.addConstraint(Sketcher.Constraint("Coincident", 10, 2, 11, 1))
sketch5.addConstraint(Sketcher.Constraint("Coincident", 11, 2, 8, 1))
sketch5.addConstraint(Sketcher.Constraint("Coincident", 12, 2, 13, 1))
sketch5.addConstraint(Sketcher.Constraint("Coincident", 13, 2, 14, 1))
sketch5.addConstraint(Sketcher.Constraint("Coincident", 14, 2, 15, 1))
sketch5.addConstraint(Sketcher.Constraint("Coincident", 15, 2, 12, 1))
sketch5.addConstraint(Sketcher.Constraint("Coincident", 16, 2, 17, 1))
sketch5.addConstraint(Sketcher.Constraint("Coincident", 17, 2, 18, 1))
sketch5.addConstraint(Sketcher.Constraint("Coincident", 18, 2, 19, 1))
sketch5.addConstraint(Sketcher.Constraint("Coincident", 19, 2, 16, 1))
sketch5.addConstraint(Sketcher.Constraint("Coincident", 20, 2, 21, 1))
sketch5.addConstraint(Sketcher.Constraint("Coincident", 21, 2, 22, 1))
sketch5.addConstraint(Sketcher.Constraint("Coincident", 22, 2, 23, 1))
sketch5.addConstraint(Sketcher.Constraint("Coincident", 23, 2, 20, 1))
sketch5.addConstraint(Sketcher.Constraint("Coincident", 24, 2, 25, 1))
sketch5.addConstraint(Sketcher.Constraint("Coincident", 25, 2, 26, 1))
sketch5.addConstraint(Sketcher.Constraint("Coincident", 26, 2, 27, 1))
sketch5.addConstraint(Sketcher.Constraint("Coincident", 27, 2, 24, 1))
sketch5.addConstraint(Sketcher.Constraint("Coincident", 28, 2, 29, 1))
sketch5.addConstraint(Sketcher.Constraint("Coincident", 29, 2, 30, 1))
sketch5.addConstraint(Sketcher.Constraint("Coincident", 30, 2, 31, 1))
sketch5.addConstraint(Sketcher.Constraint("Coincident", 31, 2, 28, 1))
sketch5.addConstraint(Sketcher.Constraint("Coincident", 32, 2, 33, 1))
sketch5.addConstraint(Sketcher.Constraint("Coincident", 33, 2, 34, 1))
sketch5.addConstraint(Sketcher.Constraint("Coincident", 34, 2, 35, 1))
sketch5.addConstraint(Sketcher.Constraint("Coincident", 35, 2, 32, 1))
sketch5.addConstraint(Sketcher.Constraint("Coincident", 36, 2, 37, 1))
sketch5.addConstraint(Sketcher.Constraint("Coincident", 37, 2, 38, 1))
sketch5.addConstraint(Sketcher.Constraint("Coincident", 38, 2, 39, 1))
sketch5.addConstraint(Sketcher.Constraint("Coincident", 39, 2, 36, 1))
sketch5.addConstraint(Sketcher.Constraint("Coincident", 40, 2, 41, 1))
sketch5.addConstraint(Sketcher.Constraint("Coincident", 41, 2, 42, 1))
sketch5.addConstraint(Sketcher.Constraint("Coincident", 42, 2, 43, 1))
sketch5.addConstraint(Sketcher.Constraint("Coincident", 43, 2, 40, 1))
sketch5.addConstraint(Sketcher.Constraint("Coincident", 44, 2, 45, 1))
sketch5.addConstraint(Sketcher.Constraint("Coincident", 45, 2, 46, 1))
sketch5.addConstraint(Sketcher.Constraint("Coincident", 46, 2, 47, 1))
sketch5.addConstraint(Sketcher.Constraint("Coincident", 47, 2, 44, 1))
sketch5.addConstraint(Sketcher.Constraint("Vertical", 0))
sketch5.addConstraint(Sketcher.Constraint("Horizontal", 1))
sketch5.addConstraint(Sketcher.Constraint("Vertical", 2))
sketch5.addConstraint(Sketcher.Constraint("Horizontal", 3))
sketch5.addConstraint(Sketcher.Constraint("Vertical", 4))
sketch5.addConstraint(Sketcher.Constraint("Horizontal", 5))
sketch5.addConstraint(Sketcher.Constraint("Vertical", 6))
sketch5.addConstraint(Sketcher.Constraint("Horizontal", 7))
sketch5.addConstraint(Sketcher.Constraint("Vertical", 8))
sketch5.addConstraint(Sketcher.Constraint("Horizontal", 9))
sketch5.addConstraint(Sketcher.Constraint("Vertical", 10))
sketch5.addConstraint(Sketcher.Constraint("Horizontal", 11))
sketch5.addConstraint(Sketcher.Constraint("Vertical", 12))
sketch5.addConstraint(Sketcher.Constraint("Horizontal", 13))
sketch5.addConstraint(Sketcher.Constraint("Vertical", 14))
sketch5.addConstraint(Sketcher.Constraint("Horizontal", 15))
sketch5.addConstraint(Sketcher.Constraint("Vertical", 16))
sketch5.addConstraint(Sketcher.Constraint("Horizontal", 17))
sketch5.addConstraint(Sketcher.Constraint("Vertical", 18))
sketch5.addConstraint(Sketcher.Constraint("Horizontal", 19))
sketch5.addConstraint(Sketcher.Constraint("Vertical", 20))
sketch5.addConstraint(Sketcher.Constraint("Horizontal", 21))
sketch5.addConstraint(Sketcher.Constraint("Vertical", 22))
sketch5.addConstraint(Sketcher.Constraint("Horizontal", 23))
sketch5.addConstraint(Sketcher.Constraint("Vertical", 24))
sketch5.addConstraint(Sketcher.Constraint("Horizontal", 25))
sketch5.addConstraint(Sketcher.Constraint("Vertical", 26))
sketch5.addConstraint(Sketcher.Constraint("Horizontal", 27))
sketch5.addConstraint(Sketcher.Constraint("Vertical", 28))
sketch5.addConstraint(Sketcher.Constraint("Horizontal", 29))
sketch5.addConstraint(Sketcher.Constraint("Vertical", 30))
sketch5.addConstraint(Sketcher.Constraint("Horizontal", 31))
sketch5.addConstraint(Sketcher.Constraint("Vertical", 32))
sketch5.addConstraint(Sketcher.Constraint("Horizontal", 33))
sketch5.addConstraint(Sketcher.Constraint("Vertical", 34))
sketch5.addConstraint(Sketcher.Constraint("Horizontal", 35))
sketch5.addConstraint(Sketcher.Constraint("Vertical", 36))
sketch5.addConstraint(Sketcher.Constraint("Horizontal", 37))
sketch5.addConstraint(Sketcher.Constraint("Vertical", 38))
sketch5.addConstraint(Sketcher.Constraint("Horizontal", 39))
sketch5.addConstraint(Sketcher.Constraint("Vertical", 40))
sketch5.addConstraint(Sketcher.Constraint("Horizontal", 41))
sketch5.addConstraint(Sketcher.Constraint("Vertical", 42))
sketch5.addConstraint(Sketcher.Constraint("Horizontal", 43))
sketch5.addConstraint(Sketcher.Constraint("Vertical", 44))
sketch5.addConstraint(Sketcher.Constraint("Horizontal", 45))
sketch5.addConstraint(Sketcher.Constraint("Vertical", 46))
sketch5.addConstraint(Sketcher.Constraint("Horizontal", 47))
sketch5.addConstraint(Sketcher.Constraint("Horizontal", 1, 2, 16, 2))
sketch5.addConstraint(Sketcher.Constraint("Horizontal", 3, 2, 18, 2))
sketch5.addConstraint(Sketcher.Constraint("Horizontal", 17, 2, 20, 2))
sketch5.addConstraint(Sketcher.Constraint("Horizontal", 19, 2, 22, 2))
sketch5.addConstraint(Sketcher.Constraint("Horizontal", 5, 2, 24, 2))
sketch5.addConstraint(Sketcher.Constraint("Horizontal", 7, 2, 26, 2))
sketch5.addConstraint(Sketcher.Constraint("Horizontal", 9, 2, 28, 2))
sketch5.addConstraint(Sketcher.Constraint("Horizontal", 11, 2, 30, 2))
sketch5.addConstraint(Sketcher.Constraint("Horizontal", 13, 2, 32, 2))
sketch5.addConstraint(Sketcher.Constraint("Horizontal", 15, 2, 34, 2))
sketch5.addConstraint(Sketcher.Constraint("Horizontal", 33, 2, 36, 2))
sketch5.addConstraint(Sketcher.Constraint("Horizontal", 35, 2, 38, 2))
sketch5.addConstraint(Sketcher.Constraint("Horizontal", 29, 2, 40, 2))
sketch5.addConstraint(Sketcher.Constraint("Horizontal", 31, 2, 42, 2))
sketch5.addConstraint(Sketcher.Constraint("Horizontal", 25, 2, 44, 2))
sketch5.addConstraint(Sketcher.Constraint("Horizontal", 27, 2, 46, 2))
sketch5.addConstraint(Sketcher.Constraint("Vertical", 3, 2, 4, 2))
sketch5.addConstraint(Sketcher.Constraint("Vertical", 2, 2, 5, 2))
sketch5.addConstraint(Sketcher.Constraint("Vertical", 7, 2, 8, 2))
sketch5.addConstraint(Sketcher.Constraint("Vertical", 6, 2, 9, 2))
sketch5.addConstraint(Sketcher.Constraint("Vertical", 11, 2, 12, 2))
sketch5.addConstraint(Sketcher.Constraint("Vertical", 10, 2, 13, 2))
sketch5.addConstraint(Sketcher.Constraint("Vertical", 19, 2, 24, 2))
sketch5.addConstraint(Sketcher.Constraint("Vertical", 18, 2, 25, 2))
sketch5.addConstraint(Sketcher.Constraint("Vertical", 27, 2, 28, 2))
sketch5.addConstraint(Sketcher.Constraint("Vertical", 26, 2, 29, 2))
sketch5.addConstraint(Sketcher.Constraint("Vertical", 31, 2, 32, 2))
sketch5.addConstraint(Sketcher.Constraint("Vertical", 30, 2, 33, 2))
sketch5.addConstraint(Sketcher.Constraint("Vertical", 23, 2, 36, 2))
sketch5.addConstraint(Sketcher.Constraint("Vertical", 22, 2, 37, 2))
sketch5.addConstraint(Sketcher.Constraint("Vertical", 39, 2, 40, 2))
sketch5.addConstraint(Sketcher.Constraint("Vertical", 38, 2, 41, 2))
sketch5.addConstraint(Sketcher.Constraint("Vertical", 43, 2, 44, 2))
sketch5.addConstraint(Sketcher.Constraint("Vertical", 42, 2, 45, 2))
sketch5.addConstraint(Sketcher.Constraint("Equal", 15, 17))
sketch5.addConstraint(Sketcher.Constraint("Equal", 19, 21))
sketch5.addConstraint(Sketcher.Constraint("Equal", 2, 4))
sketch5.addConstraint(Sketcher.Constraint("Equal", 6, 8))
sketch5.addConstraint(Sketcher.Constraint("Equal", 10, 12))
sketch5.addConstraint(Sketcher.Constraint("DistanceX", 1, 1, 1, 2, Q("2.25 in")))
sketch5.addConstraint(Sketcher.Constraint("DistanceY", 0, 1, 0, 2, Q("1.25 in")))
sketch5.addConstraint(Sketcher.Constraint("DistanceX", 0, 2, -1, 1, Q("4.9 in")))
sketch5.addConstraint(Sketcher.Constraint("DistanceX", -1, 1, 17, 2, Q("0.9 in")))
sketch5.addConstraint(Sketcher.Constraint("DistanceX", -1, 1, 20, 2, Q("2.2 in")))
sketch5.addConstraint(Sketcher.Constraint("DistanceY", 3, 2, 4, 2, Q("3.4 in")))
sketch5.addConstraint(Sketcher.Constraint("DistanceY", 7, 2, 8, 2, Q("3.4 in")))
sketch5.addConstraint(Sketcher.Constraint("DistanceY", 11, 2, 12, 2, Q("3.4 in")))
sketch5.addConstraint(Sketcher.Constraint("DistanceY", 0, 2, -1, 1, 67.04))
sketch5.setExpression("Constraints[135]", "Params.sketch5_width")
sketch5.setExpression("Constraints[136]", "Params.sketch5_height")
pocket3 = doc.addObject("PartDesign::Pocket", "Pocket002")
body.addObject(pocket3)
pocket3.Profile = sketch5
pocket3.Type = "ThroughAll"
pocket3.Reversed = True

# Sketch on XZ plane
sketch6 = doc.addObject("Sketcher::SketchObject", "Sketch005")
body.addObject(sketch6)
sketch6.AttachmentSupport = (doc.XZ_Plane, [""])
sketch6.MapMode = "FlatFace"
sketch6.AttachmentOffset = App.Placement(Vector(0, 0, -0.25 * 25.4), App.Rotation())
sketch6.addGeometry(Part.LineSegment(Vector(35.8, -40.3, 0), Vector(39.4, -43.8, 0)), False)
sketch6.addGeometry(Part.LineSegment(Vector(39.4, -43.8, 0), Vector(39.4, -113.2, 0)), False)
sketch6.addGeometry(Part.LineSegment(Vector(39.4, -113.2, 0), Vector(-161, -113.2, 0)), False)
sketch6.addGeometry(Part.LineSegment(Vector(-161, -113.2, 0), Vector(-161, 108, 0)), False)
sketch6.addGeometry(Part.LineSegment(Vector(-161, 108, 0), Vector(39.4, 108, 0)), False)
sketch6.addGeometry(Part.LineSegment(Vector(39.4, 108, 0), Vector(39.4, 38.8, 0)), False)
sketch6.addGeometry(Part.LineSegment(Vector(39.4, 38.8, 0), Vector(42.7, 35.5, 0)), False)
sketch6.addGeometry(Part.LineSegment(Vector(42.7, 35.5, 0), Vector(35.8, 28.6, 0)), False)
sketch6.addGeometry(Part.LineSegment(Vector(35.8, 28.6, 0), Vector(42.7, 21.8, 0)), False)
sketch6.addGeometry(Part.LineSegment(Vector(42.7, 21.8, 0), Vector(35.8, 14.9, 0)), False)
sketch6.addGeometry(Part.LineSegment(Vector(35.8, 14.9, 0), Vector(42.7, 8, 0)), False)
sketch6.addGeometry(Part.LineSegment(Vector(42.7, 8, 0), Vector(35.8, 1.1, 0)), False)
sketch6.addGeometry(Part.LineSegment(Vector(35.8, 1.1, 0), Vector(42.7, -5.8, 0)), False)
sketch6.addGeometry(Part.LineSegment(Vector(42.7, -5.8, 0), Vector(35.8, -12.7, 0)), False)
sketch6.addGeometry(Part.LineSegment(Vector(35.8, -12.7, 0), Vector(42.7, -19.6, 0)), False)
sketch6.addGeometry(Part.LineSegment(Vector(42.7, -19.6, 0), Vector(35.8, -26.5, 0)), False)
sketch6.addGeometry(Part.LineSegment(Vector(35.8, -26.5, 0), Vector(42.7, -33.4, 0)), False)
sketch6.addGeometry(Part.LineSegment(Vector(42.7, -33.4, 0), Vector(35.8, -40.3, 0)), False)
sketch6.addConstraint(Sketcher.Constraint("Coincident", 0, 2, 1, 1))
sketch6.addConstraint(Sketcher.Constraint("Coincident", 1, 2, 2, 1))
sketch6.addConstraint(Sketcher.Constraint("Coincident", 2, 2, 3, 1))
sketch6.addConstraint(Sketcher.Constraint("Coincident", 3, 2, 4, 1))
sketch6.addConstraint(Sketcher.Constraint("Coincident", 4, 2, 5, 1))
sketch6.addConstraint(Sketcher.Constraint("Coincident", 5, 2, 6, 1))
sketch6.addConstraint(Sketcher.Constraint("Coincident", 6, 2, 7, 1))
sketch6.addConstraint(Sketcher.Constraint("Coincident", 7, 2, 8, 1))
sketch6.addConstraint(Sketcher.Constraint("Coincident", 8, 2, 9, 1))
sketch6.addConstraint(Sketcher.Constraint("Coincident", 9, 2, 10, 1))
sketch6.addConstraint(Sketcher.Constraint("Coincident", 10, 2, 11, 1))
sketch6.addConstraint(Sketcher.Constraint("Coincident", 11, 2, 12, 1))
sketch6.addConstraint(Sketcher.Constraint("Coincident", 12, 2, 13, 1))
sketch6.addConstraint(Sketcher.Constraint("Coincident", 13, 2, 14, 1))
sketch6.addConstraint(Sketcher.Constraint("Coincident", 14, 2, 15, 1))
sketch6.addConstraint(Sketcher.Constraint("Coincident", 15, 2, 16, 1))
sketch6.addConstraint(Sketcher.Constraint("Coincident", 16, 2, 17, 1))
sketch6.addConstraint(Sketcher.Constraint("Coincident", 17, 2, 0, 1))
sketch6.addConstraint(Sketcher.Constraint("Vertical", 1))
sketch6.addConstraint(Sketcher.Constraint("Horizontal", 2))
sketch6.addConstraint(Sketcher.Constraint("Vertical", 3))
sketch6.addConstraint(Sketcher.Constraint("Horizontal", 4))
sketch6.addConstraint(Sketcher.Constraint("Vertical", 5))
sketch6.addConstraint(Sketcher.Constraint("Parallel", 0, 6))
sketch6.addConstraint(Sketcher.Constraint("Perpendicular", 6, 7))
sketch6.addConstraint(Sketcher.Constraint("Perpendicular", 7, 8))
sketch6.addConstraint(Sketcher.Constraint("Perpendicular", 8, 9))
sketch6.addConstraint(Sketcher.Constraint("Perpendicular", 9, 10))
sketch6.addConstraint(Sketcher.Constraint("Perpendicular", 10, 11))
sketch6.addConstraint(Sketcher.Constraint("Perpendicular", 11, 12))
sketch6.addConstraint(Sketcher.Constraint("Perpendicular", 12, 13))
sketch6.addConstraint(Sketcher.Constraint("Perpendicular", 13, 14))
sketch6.addConstraint(Sketcher.Constraint("Perpendicular", 14, 15))
sketch6.addConstraint(Sketcher.Constraint("Perpendicular", 15, 16))
sketch6.addConstraint(Sketcher.Constraint("Perpendicular", 16, 17))
sketch6.addConstraint(Sketcher.Constraint("Vertical", 1, 2, 4, 2))
sketch6.addConstraint(Sketcher.Constraint("Vertical", 6, 2, 8, 2))
sketch6.addConstraint(Sketcher.Constraint("Vertical", 7, 2, 9, 2))
sketch6.addConstraint(Sketcher.Constraint("Vertical", 8, 2, 10, 2))
sketch6.addConstraint(Sketcher.Constraint("Vertical", 9, 2, 11, 2))
sketch6.addConstraint(Sketcher.Constraint("Vertical", 10, 2, 12, 2))
sketch6.addConstraint(Sketcher.Constraint("Vertical", 11, 2, 13, 2))
sketch6.addConstraint(Sketcher.Constraint("Vertical", 12, 2, 14, 2))
sketch6.addConstraint(Sketcher.Constraint("Vertical", 13, 2, 15, 2))
sketch6.addConstraint(Sketcher.Constraint("Vertical", 14, 2, 16, 2))
sketch6.addConstraint(Sketcher.Constraint("Vertical", 15, 2, 17, 2))
sketch6.addConstraint(Sketcher.Constraint("Equal", 7, 8))
sketch6.addConstraint(Sketcher.Constraint("DistanceX", -1, 1, 0, 2, Q("1.55 in")))
sketch6.addConstraint(Sketcher.Constraint("DistanceY", -1, 1, 3, 2, Q("4.25 in")))
sketch6.addConstraint(Sketcher.Constraint("DistanceY", 11, 2, 6, 2, 34.453098))
sketch6.addConstraint(Sketcher.Constraint("DistanceX", 2, 2, 2, 1, 200.321266))
sketch6.addConstraint(Sketcher.Constraint("DistanceY", 1, 2, 1, 1, 69.313484))
sketch6.addConstraint(Sketcher.Constraint("DistanceY", 3, 1, 3, 2, 221.110256))
sketch6.addConstraint(Sketcher.Constraint("DistanceX", -1, 1, 6, 2, 42.67939))
pocket4 = doc.addObject("PartDesign::Pocket", "Pocket003")
body.addObject(pocket4)
pocket4.Profile = sketch6
pocket4.Type = "ThroughAll"
pocket4.Reversed = True

doc.recompute()
